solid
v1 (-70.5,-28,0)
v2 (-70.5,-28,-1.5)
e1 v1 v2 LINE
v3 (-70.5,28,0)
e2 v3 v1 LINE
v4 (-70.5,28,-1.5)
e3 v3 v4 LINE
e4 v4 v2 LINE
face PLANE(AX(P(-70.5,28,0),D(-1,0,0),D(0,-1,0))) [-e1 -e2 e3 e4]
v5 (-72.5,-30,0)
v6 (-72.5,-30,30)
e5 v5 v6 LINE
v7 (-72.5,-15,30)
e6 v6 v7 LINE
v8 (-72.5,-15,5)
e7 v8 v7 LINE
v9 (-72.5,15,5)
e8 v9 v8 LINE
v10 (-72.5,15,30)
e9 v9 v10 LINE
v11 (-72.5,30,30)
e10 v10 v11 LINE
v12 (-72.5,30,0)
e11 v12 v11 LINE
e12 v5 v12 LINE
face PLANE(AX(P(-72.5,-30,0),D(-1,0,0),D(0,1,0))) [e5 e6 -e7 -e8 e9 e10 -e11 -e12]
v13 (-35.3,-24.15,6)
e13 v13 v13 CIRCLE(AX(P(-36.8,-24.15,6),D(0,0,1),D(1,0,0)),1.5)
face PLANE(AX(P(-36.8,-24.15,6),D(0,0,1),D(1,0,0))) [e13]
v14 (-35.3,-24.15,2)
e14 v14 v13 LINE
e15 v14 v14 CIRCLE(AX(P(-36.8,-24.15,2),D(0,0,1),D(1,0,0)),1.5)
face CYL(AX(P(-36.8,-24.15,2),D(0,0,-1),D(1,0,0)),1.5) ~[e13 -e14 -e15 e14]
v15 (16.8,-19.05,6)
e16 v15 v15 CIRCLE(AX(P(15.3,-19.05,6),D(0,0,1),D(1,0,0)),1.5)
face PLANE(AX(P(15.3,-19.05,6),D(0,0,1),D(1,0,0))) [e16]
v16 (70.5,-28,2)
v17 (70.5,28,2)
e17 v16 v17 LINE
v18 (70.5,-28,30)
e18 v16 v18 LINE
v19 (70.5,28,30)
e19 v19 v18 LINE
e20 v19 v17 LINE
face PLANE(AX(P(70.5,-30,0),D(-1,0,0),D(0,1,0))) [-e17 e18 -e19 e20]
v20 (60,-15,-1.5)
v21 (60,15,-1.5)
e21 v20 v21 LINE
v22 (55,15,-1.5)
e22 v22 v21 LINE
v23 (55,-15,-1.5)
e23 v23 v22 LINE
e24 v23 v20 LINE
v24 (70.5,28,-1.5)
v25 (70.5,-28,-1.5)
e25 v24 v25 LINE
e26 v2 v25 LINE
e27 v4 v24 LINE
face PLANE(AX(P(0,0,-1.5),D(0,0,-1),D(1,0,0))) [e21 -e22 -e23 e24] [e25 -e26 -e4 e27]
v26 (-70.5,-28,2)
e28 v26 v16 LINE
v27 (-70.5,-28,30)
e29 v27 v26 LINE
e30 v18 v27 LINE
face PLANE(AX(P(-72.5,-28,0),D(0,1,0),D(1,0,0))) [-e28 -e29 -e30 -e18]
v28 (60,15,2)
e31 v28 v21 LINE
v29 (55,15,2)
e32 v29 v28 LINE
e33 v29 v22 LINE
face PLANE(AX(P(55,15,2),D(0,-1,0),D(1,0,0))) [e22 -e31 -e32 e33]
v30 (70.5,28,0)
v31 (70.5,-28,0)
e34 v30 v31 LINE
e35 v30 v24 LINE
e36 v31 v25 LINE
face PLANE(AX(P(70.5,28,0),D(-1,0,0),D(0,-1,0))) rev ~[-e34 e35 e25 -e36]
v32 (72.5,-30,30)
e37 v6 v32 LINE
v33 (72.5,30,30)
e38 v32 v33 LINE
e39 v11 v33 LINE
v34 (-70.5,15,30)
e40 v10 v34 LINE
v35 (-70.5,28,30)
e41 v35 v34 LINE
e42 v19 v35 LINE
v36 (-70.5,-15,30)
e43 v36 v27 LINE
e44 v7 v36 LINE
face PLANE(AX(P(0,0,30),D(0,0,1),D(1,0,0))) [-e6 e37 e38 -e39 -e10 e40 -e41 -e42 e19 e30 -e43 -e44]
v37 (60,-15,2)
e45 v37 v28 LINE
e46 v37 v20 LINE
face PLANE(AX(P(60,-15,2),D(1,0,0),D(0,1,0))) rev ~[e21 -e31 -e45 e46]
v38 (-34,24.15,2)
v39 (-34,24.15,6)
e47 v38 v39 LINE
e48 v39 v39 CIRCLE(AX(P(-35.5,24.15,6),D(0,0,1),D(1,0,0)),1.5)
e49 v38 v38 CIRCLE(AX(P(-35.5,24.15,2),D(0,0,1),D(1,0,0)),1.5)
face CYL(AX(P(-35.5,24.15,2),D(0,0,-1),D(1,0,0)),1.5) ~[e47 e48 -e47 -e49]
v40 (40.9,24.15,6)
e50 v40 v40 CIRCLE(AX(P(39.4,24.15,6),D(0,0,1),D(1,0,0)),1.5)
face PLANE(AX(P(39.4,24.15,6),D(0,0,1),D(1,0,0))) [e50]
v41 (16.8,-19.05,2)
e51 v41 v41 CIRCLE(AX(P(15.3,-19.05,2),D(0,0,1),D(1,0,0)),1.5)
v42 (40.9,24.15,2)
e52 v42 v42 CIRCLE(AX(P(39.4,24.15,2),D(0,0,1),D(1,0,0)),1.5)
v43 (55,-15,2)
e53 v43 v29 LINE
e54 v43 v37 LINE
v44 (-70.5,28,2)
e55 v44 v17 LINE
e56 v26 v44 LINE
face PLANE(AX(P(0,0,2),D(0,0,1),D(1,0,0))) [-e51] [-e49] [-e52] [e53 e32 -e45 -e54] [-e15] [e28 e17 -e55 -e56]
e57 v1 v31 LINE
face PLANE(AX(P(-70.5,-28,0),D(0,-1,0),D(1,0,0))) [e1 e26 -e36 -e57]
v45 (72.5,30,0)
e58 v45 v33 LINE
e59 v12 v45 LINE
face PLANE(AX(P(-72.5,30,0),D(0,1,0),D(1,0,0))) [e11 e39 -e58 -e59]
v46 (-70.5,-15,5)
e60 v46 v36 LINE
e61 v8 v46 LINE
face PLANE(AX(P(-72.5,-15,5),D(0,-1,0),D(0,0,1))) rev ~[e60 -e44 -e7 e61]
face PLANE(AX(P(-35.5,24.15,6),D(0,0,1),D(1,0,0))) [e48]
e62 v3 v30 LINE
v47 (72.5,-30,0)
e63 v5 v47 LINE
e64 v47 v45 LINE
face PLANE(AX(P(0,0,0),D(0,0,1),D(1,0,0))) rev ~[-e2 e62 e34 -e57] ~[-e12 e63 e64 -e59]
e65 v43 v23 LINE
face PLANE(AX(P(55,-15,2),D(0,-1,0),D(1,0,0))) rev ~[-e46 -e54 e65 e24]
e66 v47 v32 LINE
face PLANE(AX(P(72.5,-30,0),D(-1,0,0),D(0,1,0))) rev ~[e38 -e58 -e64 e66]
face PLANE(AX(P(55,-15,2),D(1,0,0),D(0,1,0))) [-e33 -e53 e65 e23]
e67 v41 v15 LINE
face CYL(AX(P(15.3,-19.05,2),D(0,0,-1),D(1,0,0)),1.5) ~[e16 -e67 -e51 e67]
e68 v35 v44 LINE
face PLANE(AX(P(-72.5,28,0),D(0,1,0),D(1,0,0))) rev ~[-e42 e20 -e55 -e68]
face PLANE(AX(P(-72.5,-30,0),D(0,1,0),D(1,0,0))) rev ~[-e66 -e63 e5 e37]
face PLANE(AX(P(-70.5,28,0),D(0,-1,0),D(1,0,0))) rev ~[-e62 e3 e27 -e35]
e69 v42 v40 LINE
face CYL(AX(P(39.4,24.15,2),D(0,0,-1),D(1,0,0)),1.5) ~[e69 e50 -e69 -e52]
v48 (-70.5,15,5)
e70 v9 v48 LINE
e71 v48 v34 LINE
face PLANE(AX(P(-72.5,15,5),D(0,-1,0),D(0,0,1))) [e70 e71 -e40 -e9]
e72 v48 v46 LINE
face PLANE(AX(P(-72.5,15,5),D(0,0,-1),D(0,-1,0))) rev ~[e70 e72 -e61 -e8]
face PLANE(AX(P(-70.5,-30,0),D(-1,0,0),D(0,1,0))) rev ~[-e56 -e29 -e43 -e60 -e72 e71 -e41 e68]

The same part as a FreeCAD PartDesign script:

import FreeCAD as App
import Part
import Sketcher
Q = App.Units.Quantity


def faces_at(feature, points):
    """Names of the faces that lie closest to the given points."""
    faces = feature.Shape.Faces
    near = lambda p: min(range(len(faces)), key=lambda i: faces[i].distToShape(Part.Vertex(*p))[0])
    return sorted({f"Face{near(p) + 1}" for p in points})

doc = App.newDocument("Part")
body = doc.addObject("PartDesign::Body", "Body")

sketch1 = body.newObject("Sketcher::SketchObject", "Sketch")
sketch1.AttachmentSupport = (doc.getObject("XY_Plane"), [""])
sketch1.MapMode = "FlatFace"
sketch1.addGeometry(Part.LineSegment(App.Vector(-72, 30, 0), App.Vector(-72, -30, 0)), False)
sketch1.addGeometry(Part.LineSegment(App.Vector(-72, -30, 0), App.Vector(72, -30, 0)), False)
sketch1.addGeometry(Part.LineSegment(App.Vector(72, -30, 0), App.Vector(72, 30, 0)), False)
sketch1.addGeometry(Part.LineSegment(App.Vector(72, 30, 0), App.Vector(-72, 30, 0)), False)
sketch1.addConstraint(Sketcher.Constraint("Coincident", 0, 2, 1, 1))
sketch1.addConstraint(Sketcher.Constraint("Coincident", 1, 2, 2, 1))
sketch1.addConstraint(Sketcher.Constraint("Coincident", 2, 2, 3, 1))
sketch1.addConstraint(Sketcher.Constraint("Coincident", 3, 2, 0, 1))
sketch1.addConstraint(Sketcher.Constraint("Vertical", 0))
sketch1.addConstraint(Sketcher.Constraint("Horizontal", 1))
sketch1.addConstraint(Sketcher.Constraint("Vertical", 2))
sketch1.addConstraint(Sketcher.Constraint("Horizontal", 3))
sketch1.addConstraint(Sketcher.Constraint("Symmetric", 0, 2, 2, 2, -1, 1))
sketch1.addConstraint(Sketcher.Constraint("DistanceX", 1, 1, 1, 2, Q("145 mm")))
sketch1.addConstraint(Sketcher.Constraint("DistanceY", 0, 2, 0, 1, Q("60 mm")))
pad1 = body.newObject("PartDesign::Pad", "Pad")
pad1.Profile = sketch1
pad1.Length = 30
doc.recompute()

thickness = body.newObject("PartDesign::Thickness", "Thickness")
thickness.Base = (pad1, faces_at(pad1, [(0, 0, 30)]))
thickness.Value = 2
thickness.Reversed = True
thickness.Join = "Intersection"

sketch2 = body.newObject("Sketcher::SketchObject", "Sketch001")
sketch2.AttachmentSupport = (doc.getObject("XY_Plane"), [""])
sketch2.MapMode = "FlatFace"
sketch2.addGeometry(Part.LineSegment(App.Vector(-70, -28, 0), App.Vector(-70, 28, 0)), False)
sketch2.addGeometry(Part.LineSegment(App.Vector(-70, 28, 0), App.Vector(70, 28, 0)), False)
sketch2.addGeometry(Part.LineSegment(App.Vector(70, 28, 0), App.Vector(70, -28, 0)), False)
sketch2.addGeometry(Part.LineSegment(App.Vector(70, -28, 0), App.Vector(-70, -28, 0)), False)
sketch2.addConstraint(Sketcher.Constraint("Coincident", 0, 2, 1, 1))
sketch2.addConstraint(Sketcher.Constraint("Coincident", 1, 2, 2, 1))
sketch2.addConstraint(Sketcher.Constraint("Coincident", 2, 2, 3, 1))
sketch2.addConstraint(Sketcher.Constraint("Coincident", 3, 2, 0, 1))
sketch2.addConstraint(Sketcher.Constraint("Vertical", 0))
sketch2.addConstraint(Sketcher.Constraint("Horizontal", 1))
sketch2.addConstraint(Sketcher.Constraint("Vertical", 2))
sketch2.addConstraint(Sketcher.Constraint("Horizontal", 3))
sketch2.addConstraint(Sketcher.Constraint("Symmetric", 0, 2, 2, 2, -1, 1))
sketch2.addConstraint(Sketcher.Constraint("DistanceX", 1, 1, 1, 2, Q("141 mm")))
sketch2.addConstraint(Sketcher.Constraint("DistanceY", 0, 1, 0, 2, Q("56 mm")))
pad2 = body.newObject("PartDesign::Pad", "Pad001")
pad2.Profile = sketch2
pad2.Length = 1.5
pad2.Reversed = True

sketch3 = body.newObject("Sketcher::SketchObject", "Sketch002")
sketch3.AttachmentSupport = (doc.getObject("YZ_Plane"), [""])
sketch3.MapMode = "FlatFace"
sketch3.AttachmentOffset = App.Placement(App.Vector(0, 0, -72.5), App.Rotation())
sketch3.addGeometry(Part.LineSegment(App.Vector(15, 30, 0), App.Vector(15, 5, 0)), False)
sketch3.addGeometry(Part.LineSegment(App.Vector(15, 5, 0), App.Vector(-15, 5, 0)), False)
sketch3.addGeometry(Part.LineSegment(App.Vector(-15, 5, 0), App.Vector(-15, 30, 0)), False)
sketch3.addGeometry(Part.LineSegment(App.Vector(-15, 30, 0), App.Vector(15, 30, 0)), False)
sketch3.addConstraint(Sketcher.Constraint("Coincident", 0, 2, 1, 1))
sketch3.addConstraint(Sketcher.Constraint("Coincident", 1, 2, 2, 1))
sketch3.addConstraint(Sketcher.Constraint("Coincident", 2, 2, 3, 1))
sketch3.addConstraint(Sketcher.Constraint("Coincident", 3, 2, 0, 1))
sketch3.addConstraint(Sketcher.Constraint("Vertical", 0))
sketch3.addConstraint(Sketcher.Constraint("Horizontal", 1))
sketch3.addConstraint(Sketcher.Constraint("Vertical", 2))
sketch3.addConstraint(Sketcher.Constraint("Horizontal", 3))
sketch3.addConstraint(Sketcher.Constraint("DistanceX", 1, 2, 1, 1, Q("30 mm")))
sketch3.addConstraint(Sketcher.Constraint("DistanceY", 0, 2, 0, 1, Q("25 mm")))
sketch3.addConstraint(Sketcher.Constraint("DistanceX", -1, 1, 0, 2, Q("15 mm")))
sketch3.addConstraint(Sketcher.Constraint("DistanceY", -1, 1, 0, 2, Q("5 mm")))
pocket1 = body.newObject("PartDesign::Pocket", "Pocket")
pocket1.Profile = sketch3
pocket1.Length = 2
pocket1.Reversed = True

sketch4 = body.newObject("Sketcher::SketchObject", "Sketch003")
sketch4.AttachmentSupport = (doc.getObject("XY_Plane"), [""])
sketch4.MapMode = "FlatFace"
sketch4.AttachmentOffset = App.Placement(App.Vector(0, 0, 2), App.Rotation())
sketch4.addGeometry(Part.LineSegment(App.Vector(55, 15, 0), App.Vector(55, -15, 0)), False)
sketch4.addGeometry(Part.LineSegment(App.Vector(55, -15, 0), App.Vector(60, -15, 0)), False)
sketch4.addGeometry(Part.LineSegment(App.Vector(60, -15, 0), App.Vector(60, 15, 0)), False)
sketch4.addGeometry(Part.LineSegment(App.Vector(60, 15, 0), App.Vector(55, 15, 0)), False)
sketch4.addConstraint(Sketcher.Constraint("Coincident", 0, 2, 1, 1))
sketch4.addConstraint(Sketcher.Constraint("Coincident", 1, 2, 2, 1))
sketch4.addConstraint(Sketcher.Constraint("Coincident", 2, 2, 3, 1))
sketch4.addConstraint(Sketcher.Constraint("Coincident", 3, 2, 0, 1))
sketch4.addConstraint(Sketcher.Constraint("Vertical", 0))
sketch4.addConstraint(Sketcher.Constraint("Horizontal", 1))
sketch4.addConstraint(Sketcher.Constraint("Vertical", 2))
sketch4.addConstraint(Sketcher.Constraint("Horizontal", 3))
sketch4.addConstraint(Sketcher.Constraint("DistanceX", 1, 1, 1, 2, Q("5 mm")))
sketch4.addConstraint(Sketcher.Constraint("DistanceY", 0, 2, 0, 1, Q("30 mm")))
sketch4.addConstraint(Sketcher.Constraint("DistanceX", -1, 1, 0, 2, Q("55 mm")))
sketch4.addConstraint(Sketcher.Constraint("DistanceY", 0, 2, -1, 1, Q("15 mm")))
pocket2 = body.newObject("PartDesign::Pocket", "Pocket001")
pocket2.Profile = sketch4
pocket2.Length = 3.5

sketch5 = body.newObject("Sketcher::SketchObject", "Sketch004")
sketch5.AttachmentSupport = (doc.getObject("XY_Plane"), [""])
sketch5.MapMode = "FlatFace"
sketch5.AttachmentOffset = App.Placement(App.Vector(0, 0, 2), App.Rotation())
sketch5.addGeometry(Part.Circle(App.Vector(-35.5, 24.1, 0), App.Vector(0, 0, 1), 1.5), False)
sketch5.addGeometry(Part.Circle(App.Vector(-36.8, -24.1, 0), App.Vector(0, 0, 1), 1.5), False)
sketch5.addGeometry(Part.Circle(App.Vector(39.4, 24.1, 0), App.Vector(0, 0, 1), 1.5), False)
sketch5.addGeometry(Part.Circle(App.Vector(15.3, -19.1, 0), App.Vector(0, 0, 1), 1.5), False)
sketch5.addConstraint(Sketcher.Constraint("Equal", 0, 1))
sketch5.addConstraint(Sketcher.Constraint("Equal", 1, 2))
sketch5.addConstraint(Sketcher.Constraint("Equal", 2, 3))
sketch5.addConstraint(Sketcher.Constraint("Horizontal", 0, 3, 2, 3))
sketch5.addConstraint(Sketcher.Constraint("Diameter", 0, Q("3 mm")))
sketch5.addConstraint(Sketcher.Constraint("DistanceX", 0, 3, -1, 1, Q("35.5 mm")))
sketch5.addConstraint(Sketcher.Constraint("DistanceX", 1, 3, -1, 1, Q("36.8 mm")))
sketch5.addConstraint(Sketcher.Constraint("DistanceX", -1, 1, 2, 3, Q("39.4 mm")))
sketch5.addConstraint(Sketcher.Constraint("DistanceX", -1, 1, 3, 3, Q("15.3 mm")))
sketch5.addConstraint(Sketcher.Constraint("DistanceY", 1, 3, 0, 3, Q("48.3 mm")))
sketch5.addConstraint(Sketcher.Constraint("DistanceY", 3, 3, 2, 3, Q("43.2 mm")))
sketch5.addConstraint(Sketcher.Constraint("DistanceY", -1, 1, 0, 3, Q("24.15 mm")))
pad3 = body.newObject("PartDesign::Pad", "Pad002")
pad3.Profile = sketch5
pad3.Length = 4

doc.recompute()
